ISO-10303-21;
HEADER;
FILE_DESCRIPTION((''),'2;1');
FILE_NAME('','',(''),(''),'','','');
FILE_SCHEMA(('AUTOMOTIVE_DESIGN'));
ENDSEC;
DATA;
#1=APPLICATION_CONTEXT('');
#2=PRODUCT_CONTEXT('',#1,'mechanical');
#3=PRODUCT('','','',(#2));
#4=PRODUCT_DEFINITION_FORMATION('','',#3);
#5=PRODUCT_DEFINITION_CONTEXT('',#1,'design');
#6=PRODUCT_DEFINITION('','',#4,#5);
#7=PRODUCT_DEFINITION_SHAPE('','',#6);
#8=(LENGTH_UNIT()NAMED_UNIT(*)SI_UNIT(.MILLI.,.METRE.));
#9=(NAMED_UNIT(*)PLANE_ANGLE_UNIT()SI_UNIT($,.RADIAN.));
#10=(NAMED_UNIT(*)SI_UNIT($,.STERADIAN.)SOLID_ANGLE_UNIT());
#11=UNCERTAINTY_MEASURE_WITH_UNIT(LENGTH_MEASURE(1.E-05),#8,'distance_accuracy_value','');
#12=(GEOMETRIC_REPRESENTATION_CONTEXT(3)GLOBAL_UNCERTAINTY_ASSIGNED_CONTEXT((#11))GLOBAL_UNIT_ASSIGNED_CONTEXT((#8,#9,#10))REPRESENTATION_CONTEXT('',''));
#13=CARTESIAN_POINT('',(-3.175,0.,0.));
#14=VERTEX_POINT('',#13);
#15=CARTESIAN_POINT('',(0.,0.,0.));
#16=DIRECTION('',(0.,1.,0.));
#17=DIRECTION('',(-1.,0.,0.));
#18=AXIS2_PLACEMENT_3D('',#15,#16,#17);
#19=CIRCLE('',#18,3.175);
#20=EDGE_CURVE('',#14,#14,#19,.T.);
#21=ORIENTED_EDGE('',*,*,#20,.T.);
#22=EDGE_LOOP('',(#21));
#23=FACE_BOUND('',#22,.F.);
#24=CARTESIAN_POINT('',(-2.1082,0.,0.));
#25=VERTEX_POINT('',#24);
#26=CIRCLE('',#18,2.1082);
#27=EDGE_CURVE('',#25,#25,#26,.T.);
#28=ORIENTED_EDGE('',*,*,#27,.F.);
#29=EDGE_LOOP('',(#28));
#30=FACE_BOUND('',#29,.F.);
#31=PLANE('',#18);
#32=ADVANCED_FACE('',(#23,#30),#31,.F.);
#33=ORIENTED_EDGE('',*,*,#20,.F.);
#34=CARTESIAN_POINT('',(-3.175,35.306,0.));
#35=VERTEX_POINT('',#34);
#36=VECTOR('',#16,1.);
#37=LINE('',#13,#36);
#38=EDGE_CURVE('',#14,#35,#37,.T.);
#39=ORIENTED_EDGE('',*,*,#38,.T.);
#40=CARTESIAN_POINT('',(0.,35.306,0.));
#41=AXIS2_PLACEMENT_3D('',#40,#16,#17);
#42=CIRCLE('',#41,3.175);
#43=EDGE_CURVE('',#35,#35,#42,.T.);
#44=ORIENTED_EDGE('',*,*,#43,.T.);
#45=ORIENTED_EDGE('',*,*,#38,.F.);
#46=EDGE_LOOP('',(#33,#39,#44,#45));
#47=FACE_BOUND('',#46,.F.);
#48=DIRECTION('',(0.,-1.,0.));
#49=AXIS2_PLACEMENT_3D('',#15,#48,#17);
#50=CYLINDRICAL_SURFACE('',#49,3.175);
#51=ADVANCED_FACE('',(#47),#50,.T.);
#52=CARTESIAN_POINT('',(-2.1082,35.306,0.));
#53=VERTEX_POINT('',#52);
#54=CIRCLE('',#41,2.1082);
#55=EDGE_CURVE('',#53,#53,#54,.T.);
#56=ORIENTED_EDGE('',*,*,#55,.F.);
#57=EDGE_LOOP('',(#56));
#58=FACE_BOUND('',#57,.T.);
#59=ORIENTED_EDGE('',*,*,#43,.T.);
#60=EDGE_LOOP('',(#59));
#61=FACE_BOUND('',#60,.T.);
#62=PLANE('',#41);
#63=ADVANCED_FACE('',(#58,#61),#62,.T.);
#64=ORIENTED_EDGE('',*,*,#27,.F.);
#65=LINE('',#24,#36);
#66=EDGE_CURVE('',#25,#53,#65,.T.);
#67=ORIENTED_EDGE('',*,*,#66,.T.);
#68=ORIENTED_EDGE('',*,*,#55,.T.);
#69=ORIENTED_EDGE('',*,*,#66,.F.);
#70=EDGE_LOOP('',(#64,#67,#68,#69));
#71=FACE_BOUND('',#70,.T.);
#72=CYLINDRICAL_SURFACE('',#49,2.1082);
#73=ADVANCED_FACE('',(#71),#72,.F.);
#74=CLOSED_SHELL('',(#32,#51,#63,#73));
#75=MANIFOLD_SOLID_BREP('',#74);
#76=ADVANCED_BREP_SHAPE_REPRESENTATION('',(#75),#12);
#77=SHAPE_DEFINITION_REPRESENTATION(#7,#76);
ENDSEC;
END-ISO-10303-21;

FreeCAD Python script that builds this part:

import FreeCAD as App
import Part
import Sketcher
from FreeCAD import Vector
Q = App.Units.Quantity

doc = App.newDocument("Part")
params = doc.addObject("Spreadsheet::Sheet", "Params")
for row, (alias, value) in enumerate([
    ("sketch1_diameter", "0.25 in"),
    ("sketch1_diameter2", "0.166 in"),
    ("pad1_length", "1.39 in"),
], start=1):
    params.set(f"A{row}", alias)
    params.set(f"B{row}", "=" + value)
    params.setAlias(f"B{row}", alias)

body = doc.addObject("PartDesign::Body", "Body")

# Sketch on XZ plane
sketch1 = body.newObject("Sketcher::SketchObject", "Sketch")
sketch1.AttachmentSupport = (doc.getObject("XZ_Plane"), [""])
sketch1.MapMode = "FlatFace"
sketch1.addGeometry([
    Part.Circle(Vector(0, 0, 0), Vector(0, 0, 1), 3.2),
    Part.Circle(Vector(0, 0, 0), Vector(0, 0, 1), 2.1),
], False)
sketch1.addConstraint([
    Sketcher.Constraint("Coincident", 0, 3, -1, 1),
    Sketcher.Constraint("Coincident", 1, 3, -1, 1),
    Sketcher.Constraint("Diameter", 0, Q("0.25 in")),
    Sketcher.Constraint("Diameter", 1, Q("0.166 in")),
])
sketch1.setExpression("Constraints[2]", "Params.sketch1_diameter")
sketch1.setExpression("Constraints[3]", "Params.sketch1_diameter2")
pad1 = body.newObject("PartDesign::Pad", "Pad")
pad1.Profile = sketch1
pad1.setExpression("Length", "Params.pad1_length")
pad1.Reversed = True

doc.recompute()
